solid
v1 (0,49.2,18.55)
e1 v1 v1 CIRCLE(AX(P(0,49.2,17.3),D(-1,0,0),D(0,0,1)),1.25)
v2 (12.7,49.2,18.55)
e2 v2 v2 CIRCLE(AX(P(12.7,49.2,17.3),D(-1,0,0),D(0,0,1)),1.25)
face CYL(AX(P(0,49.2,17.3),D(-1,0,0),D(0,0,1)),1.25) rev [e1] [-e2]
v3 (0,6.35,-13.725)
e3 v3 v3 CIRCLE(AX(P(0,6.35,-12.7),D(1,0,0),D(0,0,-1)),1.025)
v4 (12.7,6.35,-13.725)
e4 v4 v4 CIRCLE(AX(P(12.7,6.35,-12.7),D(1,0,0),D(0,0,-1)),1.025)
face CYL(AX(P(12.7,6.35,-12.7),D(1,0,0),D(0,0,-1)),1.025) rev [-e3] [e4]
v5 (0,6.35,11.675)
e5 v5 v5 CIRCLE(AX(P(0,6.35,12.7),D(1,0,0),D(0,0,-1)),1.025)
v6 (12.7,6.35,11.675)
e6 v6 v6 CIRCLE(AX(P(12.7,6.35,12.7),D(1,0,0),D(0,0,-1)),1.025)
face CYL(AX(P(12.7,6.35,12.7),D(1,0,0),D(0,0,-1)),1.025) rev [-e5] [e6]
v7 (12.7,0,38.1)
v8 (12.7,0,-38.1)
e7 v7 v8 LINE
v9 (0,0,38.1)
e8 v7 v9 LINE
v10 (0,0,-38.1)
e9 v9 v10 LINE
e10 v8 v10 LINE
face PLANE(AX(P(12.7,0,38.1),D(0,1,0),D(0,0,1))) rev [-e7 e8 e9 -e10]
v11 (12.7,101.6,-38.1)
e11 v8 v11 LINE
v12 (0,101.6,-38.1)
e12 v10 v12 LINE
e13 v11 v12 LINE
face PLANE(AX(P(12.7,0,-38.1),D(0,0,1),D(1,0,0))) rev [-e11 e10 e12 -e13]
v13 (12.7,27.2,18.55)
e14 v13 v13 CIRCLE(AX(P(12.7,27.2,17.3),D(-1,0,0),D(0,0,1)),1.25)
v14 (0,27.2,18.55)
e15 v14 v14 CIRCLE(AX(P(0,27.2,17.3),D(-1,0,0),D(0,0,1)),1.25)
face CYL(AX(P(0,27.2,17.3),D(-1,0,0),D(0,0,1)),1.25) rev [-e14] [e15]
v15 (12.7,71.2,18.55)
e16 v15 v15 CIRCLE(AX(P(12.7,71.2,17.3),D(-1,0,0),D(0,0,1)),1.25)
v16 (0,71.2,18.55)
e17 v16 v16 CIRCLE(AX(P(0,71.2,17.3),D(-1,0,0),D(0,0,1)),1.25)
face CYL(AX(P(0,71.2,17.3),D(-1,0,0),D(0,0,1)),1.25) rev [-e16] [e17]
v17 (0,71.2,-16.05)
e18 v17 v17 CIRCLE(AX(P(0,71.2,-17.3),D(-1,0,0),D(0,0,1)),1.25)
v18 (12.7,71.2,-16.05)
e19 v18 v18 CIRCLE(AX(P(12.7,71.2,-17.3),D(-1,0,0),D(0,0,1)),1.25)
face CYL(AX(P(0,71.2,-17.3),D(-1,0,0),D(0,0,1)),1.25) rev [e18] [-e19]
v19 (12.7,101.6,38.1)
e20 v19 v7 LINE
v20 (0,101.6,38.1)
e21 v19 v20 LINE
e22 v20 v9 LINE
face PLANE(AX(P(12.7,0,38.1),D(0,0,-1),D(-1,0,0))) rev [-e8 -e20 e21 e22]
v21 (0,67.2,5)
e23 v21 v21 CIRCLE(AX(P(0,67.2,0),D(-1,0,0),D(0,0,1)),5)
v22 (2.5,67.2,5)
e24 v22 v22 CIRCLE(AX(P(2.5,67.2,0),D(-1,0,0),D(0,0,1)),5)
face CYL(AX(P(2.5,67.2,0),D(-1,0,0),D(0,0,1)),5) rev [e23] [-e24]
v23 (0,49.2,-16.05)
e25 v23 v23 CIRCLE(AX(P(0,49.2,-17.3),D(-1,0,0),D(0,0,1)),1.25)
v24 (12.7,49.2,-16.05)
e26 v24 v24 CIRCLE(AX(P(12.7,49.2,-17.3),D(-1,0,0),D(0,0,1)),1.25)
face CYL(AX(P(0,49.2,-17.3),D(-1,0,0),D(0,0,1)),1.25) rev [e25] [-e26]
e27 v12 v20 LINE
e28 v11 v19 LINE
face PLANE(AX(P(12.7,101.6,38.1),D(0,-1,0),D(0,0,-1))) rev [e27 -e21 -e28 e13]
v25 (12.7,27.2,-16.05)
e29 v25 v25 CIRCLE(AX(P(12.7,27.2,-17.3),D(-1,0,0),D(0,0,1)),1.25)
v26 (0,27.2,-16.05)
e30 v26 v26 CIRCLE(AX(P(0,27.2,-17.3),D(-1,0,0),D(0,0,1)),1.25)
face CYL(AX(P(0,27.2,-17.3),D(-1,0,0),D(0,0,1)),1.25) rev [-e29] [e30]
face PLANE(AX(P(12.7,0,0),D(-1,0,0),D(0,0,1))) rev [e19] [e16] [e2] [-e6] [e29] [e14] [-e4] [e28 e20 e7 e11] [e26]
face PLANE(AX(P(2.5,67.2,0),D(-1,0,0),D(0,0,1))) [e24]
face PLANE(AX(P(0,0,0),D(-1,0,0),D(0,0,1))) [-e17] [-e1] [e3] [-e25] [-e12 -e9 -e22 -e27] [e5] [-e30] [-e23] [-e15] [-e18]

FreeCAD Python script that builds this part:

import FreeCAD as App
import Part
import Sketcher
Q = App.Units.Quantity


def add_polygon(sketch, points):
    """Adds a closed chain of lines whose ends are joined by coincident constraints."""
    first, n = sketch.GeometryCount, len(points)
    for a, b in zip(points, points[1:] + points[:1]):
        sketch.addGeometry(Part.LineSegment(App.Vector(*a, 0), App.Vector(*b, 0)), False)
    for i in range(n):
        sketch.addConstraint(Sketcher.Constraint("Coincident", first + i, 2, first + (i + 1) % n, 1))

doc = App.newDocument("Part")
params = doc.addObject("Spreadsheet::Sheet", "Params")
for row, (alias, value) in enumerate([
    ("sketch1_width", "4 in"),
    ("sketch1_height", "3 in"),
    ("pad1_length", "0.5 in"),
    ("hole_diameter", "2.5 mm"),
    ("pocket1_length", "2.5 mm"),
    ("hole2_diameter", "2.05 mm"),
    ("hole2_depth", "0.5 in"),
], start=1):
    params.set(f"A{row}", alias)
    params.set(f"B{row}", "=" + value)
    params.setAlias(f"B{row}", alias)

body = doc.addObject("PartDesign::Body", "Body")

# Sketch on YZ plane
sketch1 = body.newObject("Sketcher::SketchObject", "Sketch")
sketch1.AttachmentSupport = (doc.getObject("YZ_Plane"), [""])
sketch1.MapMode = "FlatFace"
add_polygon(sketch1, [(101.6, 38.1), (0, 38.1), (0, -38.1), (101.6, -38.1)])  # lines 0-3
sketch1.addConstraint([
    Sketcher.Constraint("Horizontal", 0),
    Sketcher.Constraint("Vertical", 1),
    Sketcher.Constraint("Horizontal", 2),
    Sketcher.Constraint("Vertical", 3),
    Sketcher.Constraint("Symmetric", 0, 2, 1, 2, -1, 1),
    Sketcher.Constraint("DistanceX", 0, 2, 0, 1, Q("4 in")),
    Sketcher.Constraint("DistanceY", 1, 2, 1, 1, Q("3 in")),
])
sketch1.setExpression("Constraints[9]", "Params.sketch1_width")
sketch1.setExpression("Constraints[10]", "Params.sketch1_height")
pad1 = body.newObject("PartDesign::Pad", "Pad")
pad1.Profile = sketch1
pad1.setExpression("Length", "Params.pad1_length")

# Sketch on YZ plane
sketch2 = body.newObject("Sketcher::SketchObject", "Sketch001")
sketch2.AttachmentSupport = (doc.getObject("YZ_Plane"), [""])
sketch2.MapMode = "FlatFace"
sketch2.addGeometry([
    Part.Circle(App.Vector(71.2, -17.3, 0), App.Vector(0, 0, 1), 1.25),
    Part.Circle(App.Vector(49.2, -17.3, 0), App.Vector(0, 0, 1), 1.25),
    Part.Circle(App.Vector(27.2, -17.3, 0), App.Vector(0, 0, 1), 1.25),
], False)
sketch2.addConstraint([
    Sketcher.Constraint("Equal", 0, 1),
    Sketcher.Constraint("Equal", 1, 2),
    Sketcher.Constraint("Horizontal", 0, 3, 1, 3),
    Sketcher.Constraint("Horizontal", 1, 3, 2, 3),
    Sketcher.Constraint("Diameter", 0, Q("2.5 mm")),
    Sketcher.Constraint("DistanceX", -1, 1, 0, 3, Q("71.2 mm")),
    Sketcher.Constraint("DistanceY", 0, 3, -1, 1, Q("17.3 mm")),
    Sketcher.Constraint("DistanceX", -1, 1, 1, 3, Q("49.2 mm")),
    Sketcher.Constraint("DistanceX", -1, 1, 2, 3, Q("27.2 mm")),
])
doc.recompute()
hole = body.newObject("PartDesign::Hole", "Hole")
hole.Profile = sketch2
hole.ThreadType = "None"
hole.setExpression("Diameter", "Params.hole_diameter")
hole.DepthType = "ThroughAll"
hole.Reversed = True
doc.recompute()

mirrored = body.newObject("PartDesign::Mirrored", "Mirrored")
mirrored.Originals = [hole]
mirrored.MirrorPlane = (doc.getObject("XY_Plane"), [""])
body.Tip = mirrored

# Sketch on YZ plane
sketch3 = body.newObject("Sketcher::SketchObject", "Sketch002")
sketch3.AttachmentSupport = (doc.getObject("YZ_Plane"), [""])
sketch3.MapMode = "FlatFace"
sketch3.addGeometry(Part.Circle(App.Vector(67.2, 0, 0), App.Vector(0, 0, 1), 5), False)
sketch3.addConstraint([
    Sketcher.Constraint("PointOnObject", 0, 3, -1),
    Sketcher.Constraint("Diameter", 0, Q("10 mm")),
    Sketcher.Constraint("DistanceX", -1, 1, 0, 3, Q("67.2 mm")),
])
pocket1 = body.newObject("PartDesign::Pocket", "Pocket")
pocket1.Profile = sketch3
pocket1.setExpression("Length", "Params.pocket1_length")
pocket1.Reversed = True

# Sketch on YZ plane
sketch4 = body.newObject("Sketcher::SketchObject", "Sketch003")
sketch4.AttachmentSupport = (doc.getObject("YZ_Plane"), [""])
sketch4.MapMode = "FlatFace"
sketch4.AttachmentOffset = App.Placement(App.Vector(0, 0, 0.5 * 25.4), App.Rotation())
sketch4.addGeometry([
    Part.Circle(App.Vector(6.35, 12.7, 0), App.Vector(0, 0, 1), 1.025),
    Part.Circle(App.Vector(6.35, -12.7, 0), App.Vector(0, 0, 1), 1.025),
], False)
sketch4.addConstraint([
    Sketcher.Constraint("Equal", 0, 1),
    Sketcher.Constraint("Symmetric", 0, 3, 1, 3, -1),
    Sketcher.Constraint("DistanceY", 1, 3, 0, 3, Q("1 in")),
    Sketcher.Constraint("Diameter", 0, Q("2.05 mm")),
    Sketcher.Constraint("DistanceX", -1, 1, 0, 3, Q("0.25 in")),
])
doc.recompute()
hole2 = body.newObject("PartDesign::Hole", "Hole001")
hole2.Profile = sketch4
hole2.ThreadType = "None"
hole2.setExpression("Diameter", "Params.hole2_diameter")
hole2.DepthType = "Dimension"
hole2.setExpression("Depth", "Params.hole2_depth")
hole2.DrillPoint = "Angled"
hole2.DrillPointAngle = 118

doc.recompute()
